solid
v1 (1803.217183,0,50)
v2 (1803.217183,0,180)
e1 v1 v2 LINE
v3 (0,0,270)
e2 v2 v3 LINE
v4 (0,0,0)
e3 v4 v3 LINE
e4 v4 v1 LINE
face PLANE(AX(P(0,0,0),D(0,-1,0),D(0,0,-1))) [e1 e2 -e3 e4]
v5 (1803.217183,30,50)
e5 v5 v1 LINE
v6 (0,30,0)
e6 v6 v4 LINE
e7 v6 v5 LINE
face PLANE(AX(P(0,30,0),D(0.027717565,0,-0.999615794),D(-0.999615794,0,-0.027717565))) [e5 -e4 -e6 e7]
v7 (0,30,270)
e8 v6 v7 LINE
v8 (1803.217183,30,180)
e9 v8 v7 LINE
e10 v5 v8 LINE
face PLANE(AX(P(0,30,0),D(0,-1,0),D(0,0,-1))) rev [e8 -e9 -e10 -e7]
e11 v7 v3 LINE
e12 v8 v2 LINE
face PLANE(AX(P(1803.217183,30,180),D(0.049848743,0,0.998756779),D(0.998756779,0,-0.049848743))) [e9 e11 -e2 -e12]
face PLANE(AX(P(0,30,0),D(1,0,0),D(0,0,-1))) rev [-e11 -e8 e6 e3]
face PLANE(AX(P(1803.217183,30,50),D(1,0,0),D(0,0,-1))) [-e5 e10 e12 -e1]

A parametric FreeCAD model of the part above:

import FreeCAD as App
import Part
import Sketcher

V = App.Vector
Q = App.Units.Quantity

doc = App.newDocument("Part")
params = doc.addObject("Spreadsheet::Sheet", "Params")
for row, (alias, value) in enumerate([
    ("sketch1_height", "270 mm"),
    ("sketch1_height2", "130 mm"),
    ("pad1_length", "30 mm"),
], start=1):
    params.set(f"A{row}", alias)
    params.set(f"B{row}", "=" + value)
    params.setAlias(f"B{row}", alias)

body = doc.addObject("PartDesign::Body", "Body")

# Sketch on XZ plane
sketch1 = body.newObject("Sketcher::SketchObject", "Sketch")
sketch1.AttachmentSupport = (doc.getObject("XZ_Plane"), [""])
sketch1.MapMode = "FlatFace"
sketch1.addGeometry([
    Part.LineSegment(V(0, 0, 0), V(0, 270, 0)),
    Part.LineSegment(V(0, 270, 0), V(1803, 180, 0)),
    Part.LineSegment(V(1803, 180, 0), V(1803, 50, 0)),
    Part.LineSegment(V(1803, 50, 0), V(0, 0, 0)),
], False)
sketch1.addConstraint([
    Sketcher.Constraint("Coincident", 0, 2, 1, 1),
    Sketcher.Constraint("Coincident", 1, 2, 2, 1),
    Sketcher.Constraint("Coincident", 2, 2, 3, 1),
    Sketcher.Constraint("Coincident", 3, 2, 0, 1),
    Sketcher.Constraint("Vertical", 0),
    Sketcher.Constraint("Vertical", 2),
    Sketcher.Constraint("Coincident", 3, 2, -1, 1),
    Sketcher.Constraint("DistanceY", 0, 1, 0, 2, Q("270 mm")),
    Sketcher.Constraint("DistanceY", 2, 2, 2, 1, Q("130 mm")),
    Sketcher.Constraint("DistanceY", -1, 1, 1, 2, Q("180 mm")),
    Sketcher.Constraint("Distance", 1, Q("1805.461772 mm")),
])
sketch1.setExpression("Constraints[7]", "Params.sketch1_height")
sketch1.setExpression("Constraints[8]", "Params.sketch1_height2")
pad1 = body.newObject("PartDesign::Pad", "Pad")
pad1.Profile = sketch1
pad1.setExpression("Length", "Params.pad1_length")
pad1.Reversed = True

doc.recompute()
